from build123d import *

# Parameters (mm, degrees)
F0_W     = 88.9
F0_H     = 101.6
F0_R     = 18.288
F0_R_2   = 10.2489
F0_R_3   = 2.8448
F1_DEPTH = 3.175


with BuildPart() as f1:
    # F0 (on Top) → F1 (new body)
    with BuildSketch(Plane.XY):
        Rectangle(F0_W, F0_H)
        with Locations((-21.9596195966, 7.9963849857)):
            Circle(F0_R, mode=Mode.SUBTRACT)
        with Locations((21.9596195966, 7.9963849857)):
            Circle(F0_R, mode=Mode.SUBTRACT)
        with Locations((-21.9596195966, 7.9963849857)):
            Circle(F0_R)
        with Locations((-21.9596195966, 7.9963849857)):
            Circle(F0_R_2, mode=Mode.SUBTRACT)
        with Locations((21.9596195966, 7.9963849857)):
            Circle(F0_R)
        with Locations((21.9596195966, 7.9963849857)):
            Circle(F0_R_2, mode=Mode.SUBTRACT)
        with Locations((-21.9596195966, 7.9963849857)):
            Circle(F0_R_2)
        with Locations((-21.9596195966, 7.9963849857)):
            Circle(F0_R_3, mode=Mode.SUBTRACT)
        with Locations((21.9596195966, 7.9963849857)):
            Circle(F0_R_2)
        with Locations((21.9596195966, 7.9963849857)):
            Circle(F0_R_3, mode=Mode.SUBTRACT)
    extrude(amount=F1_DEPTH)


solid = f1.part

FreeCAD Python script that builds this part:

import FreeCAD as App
import Part
import Sketcher

V = App.Vector
Q = App.Units.Quantity

doc = App.newDocument("Part")
body = doc.addObject("PartDesign::Body", "Body")

sketch1 = body.newObject("Sketcher::SketchObject", "Sketch")
sketch1.AttachmentSupport = (doc.getObject("XY_Plane"), [""])
sketch1.MapMode = "FlatFace"
sketch1.addGeometry(Part.LineSegment(V(-44.5, 50.8, 0), V(-44.5, -50.8, 0)), False)
sketch1.addGeometry(Part.LineSegment(V(-44.5, -50.8, 0), V(44.5, -50.8, 0)), False)
sketch1.addGeometry(Part.LineSegment(V(44.5, -50.8, 0), V(44.5, 50.8, 0)), False)
sketch1.addGeometry(Part.LineSegment(V(44.5, 50.8, 0), V(-44.5, 50.8, 0)), False)
sketch1.addGeometry(Part.Circle(V(-22, 8, 0), V(0, 0, 1), 2.8), False)
sketch1.addGeometry(Part.Circle(V(22, 8, 0), V(0, 0, 1), 2.8), False)
sketch1.addConstraint(Sketcher.Constraint("Coincident", 0, 2, 1, 1))
sketch1.addConstraint(Sketcher.Constraint("Coincident", 1, 2, 2, 1))
sketch1.addConstraint(Sketcher.Constraint("Coincident", 2, 2, 3, 1))
sketch1.addConstraint(Sketcher.Constraint("Coincident", 3, 2, 0, 1))
sketch1.addConstraint(Sketcher.Constraint("Vertical", 0))
sketch1.addConstraint(Sketcher.Constraint("Horizontal", 1))
sketch1.addConstraint(Sketcher.Constraint("Vertical", 2))
sketch1.addConstraint(Sketcher.Constraint("Horizontal", 3))
sketch1.addConstraint(Sketcher.Constraint("Equal", 4, 5))
sketch1.addConstraint(Sketcher.Constraint("Symmetric", 0, 2, 2, 2, -1, 1))
sketch1.addConstraint(Sketcher.Constraint("Symmetric", 4, 3, 5, 3, -2))
sketch1.addConstraint(Sketcher.Constraint("DistanceY", 0, 2, 0, 1, Q("4 in")))
sketch1.addConstraint(Sketcher.Constraint("Diameter", 4, Q("0.224 in")))
sketch1.addConstraint(Sketcher.Constraint("DistanceX", 1, 1, 1, 2, Q("3.5 in")))
sketch1.addConstraint(Sketcher.Constraint("DistanceX", 4, 3, -1, 1, Q("21.95962 mm")))
sketch1.addConstraint(Sketcher.Constraint("DistanceY", -1, 1, 4, 3, Q("7.996385 mm")))
pad1 = body.newObject("PartDesign::Pad", "Pad")
pad1.Profile = sketch1
pad1.Length = Q("0.125 in")

doc.recompute()
